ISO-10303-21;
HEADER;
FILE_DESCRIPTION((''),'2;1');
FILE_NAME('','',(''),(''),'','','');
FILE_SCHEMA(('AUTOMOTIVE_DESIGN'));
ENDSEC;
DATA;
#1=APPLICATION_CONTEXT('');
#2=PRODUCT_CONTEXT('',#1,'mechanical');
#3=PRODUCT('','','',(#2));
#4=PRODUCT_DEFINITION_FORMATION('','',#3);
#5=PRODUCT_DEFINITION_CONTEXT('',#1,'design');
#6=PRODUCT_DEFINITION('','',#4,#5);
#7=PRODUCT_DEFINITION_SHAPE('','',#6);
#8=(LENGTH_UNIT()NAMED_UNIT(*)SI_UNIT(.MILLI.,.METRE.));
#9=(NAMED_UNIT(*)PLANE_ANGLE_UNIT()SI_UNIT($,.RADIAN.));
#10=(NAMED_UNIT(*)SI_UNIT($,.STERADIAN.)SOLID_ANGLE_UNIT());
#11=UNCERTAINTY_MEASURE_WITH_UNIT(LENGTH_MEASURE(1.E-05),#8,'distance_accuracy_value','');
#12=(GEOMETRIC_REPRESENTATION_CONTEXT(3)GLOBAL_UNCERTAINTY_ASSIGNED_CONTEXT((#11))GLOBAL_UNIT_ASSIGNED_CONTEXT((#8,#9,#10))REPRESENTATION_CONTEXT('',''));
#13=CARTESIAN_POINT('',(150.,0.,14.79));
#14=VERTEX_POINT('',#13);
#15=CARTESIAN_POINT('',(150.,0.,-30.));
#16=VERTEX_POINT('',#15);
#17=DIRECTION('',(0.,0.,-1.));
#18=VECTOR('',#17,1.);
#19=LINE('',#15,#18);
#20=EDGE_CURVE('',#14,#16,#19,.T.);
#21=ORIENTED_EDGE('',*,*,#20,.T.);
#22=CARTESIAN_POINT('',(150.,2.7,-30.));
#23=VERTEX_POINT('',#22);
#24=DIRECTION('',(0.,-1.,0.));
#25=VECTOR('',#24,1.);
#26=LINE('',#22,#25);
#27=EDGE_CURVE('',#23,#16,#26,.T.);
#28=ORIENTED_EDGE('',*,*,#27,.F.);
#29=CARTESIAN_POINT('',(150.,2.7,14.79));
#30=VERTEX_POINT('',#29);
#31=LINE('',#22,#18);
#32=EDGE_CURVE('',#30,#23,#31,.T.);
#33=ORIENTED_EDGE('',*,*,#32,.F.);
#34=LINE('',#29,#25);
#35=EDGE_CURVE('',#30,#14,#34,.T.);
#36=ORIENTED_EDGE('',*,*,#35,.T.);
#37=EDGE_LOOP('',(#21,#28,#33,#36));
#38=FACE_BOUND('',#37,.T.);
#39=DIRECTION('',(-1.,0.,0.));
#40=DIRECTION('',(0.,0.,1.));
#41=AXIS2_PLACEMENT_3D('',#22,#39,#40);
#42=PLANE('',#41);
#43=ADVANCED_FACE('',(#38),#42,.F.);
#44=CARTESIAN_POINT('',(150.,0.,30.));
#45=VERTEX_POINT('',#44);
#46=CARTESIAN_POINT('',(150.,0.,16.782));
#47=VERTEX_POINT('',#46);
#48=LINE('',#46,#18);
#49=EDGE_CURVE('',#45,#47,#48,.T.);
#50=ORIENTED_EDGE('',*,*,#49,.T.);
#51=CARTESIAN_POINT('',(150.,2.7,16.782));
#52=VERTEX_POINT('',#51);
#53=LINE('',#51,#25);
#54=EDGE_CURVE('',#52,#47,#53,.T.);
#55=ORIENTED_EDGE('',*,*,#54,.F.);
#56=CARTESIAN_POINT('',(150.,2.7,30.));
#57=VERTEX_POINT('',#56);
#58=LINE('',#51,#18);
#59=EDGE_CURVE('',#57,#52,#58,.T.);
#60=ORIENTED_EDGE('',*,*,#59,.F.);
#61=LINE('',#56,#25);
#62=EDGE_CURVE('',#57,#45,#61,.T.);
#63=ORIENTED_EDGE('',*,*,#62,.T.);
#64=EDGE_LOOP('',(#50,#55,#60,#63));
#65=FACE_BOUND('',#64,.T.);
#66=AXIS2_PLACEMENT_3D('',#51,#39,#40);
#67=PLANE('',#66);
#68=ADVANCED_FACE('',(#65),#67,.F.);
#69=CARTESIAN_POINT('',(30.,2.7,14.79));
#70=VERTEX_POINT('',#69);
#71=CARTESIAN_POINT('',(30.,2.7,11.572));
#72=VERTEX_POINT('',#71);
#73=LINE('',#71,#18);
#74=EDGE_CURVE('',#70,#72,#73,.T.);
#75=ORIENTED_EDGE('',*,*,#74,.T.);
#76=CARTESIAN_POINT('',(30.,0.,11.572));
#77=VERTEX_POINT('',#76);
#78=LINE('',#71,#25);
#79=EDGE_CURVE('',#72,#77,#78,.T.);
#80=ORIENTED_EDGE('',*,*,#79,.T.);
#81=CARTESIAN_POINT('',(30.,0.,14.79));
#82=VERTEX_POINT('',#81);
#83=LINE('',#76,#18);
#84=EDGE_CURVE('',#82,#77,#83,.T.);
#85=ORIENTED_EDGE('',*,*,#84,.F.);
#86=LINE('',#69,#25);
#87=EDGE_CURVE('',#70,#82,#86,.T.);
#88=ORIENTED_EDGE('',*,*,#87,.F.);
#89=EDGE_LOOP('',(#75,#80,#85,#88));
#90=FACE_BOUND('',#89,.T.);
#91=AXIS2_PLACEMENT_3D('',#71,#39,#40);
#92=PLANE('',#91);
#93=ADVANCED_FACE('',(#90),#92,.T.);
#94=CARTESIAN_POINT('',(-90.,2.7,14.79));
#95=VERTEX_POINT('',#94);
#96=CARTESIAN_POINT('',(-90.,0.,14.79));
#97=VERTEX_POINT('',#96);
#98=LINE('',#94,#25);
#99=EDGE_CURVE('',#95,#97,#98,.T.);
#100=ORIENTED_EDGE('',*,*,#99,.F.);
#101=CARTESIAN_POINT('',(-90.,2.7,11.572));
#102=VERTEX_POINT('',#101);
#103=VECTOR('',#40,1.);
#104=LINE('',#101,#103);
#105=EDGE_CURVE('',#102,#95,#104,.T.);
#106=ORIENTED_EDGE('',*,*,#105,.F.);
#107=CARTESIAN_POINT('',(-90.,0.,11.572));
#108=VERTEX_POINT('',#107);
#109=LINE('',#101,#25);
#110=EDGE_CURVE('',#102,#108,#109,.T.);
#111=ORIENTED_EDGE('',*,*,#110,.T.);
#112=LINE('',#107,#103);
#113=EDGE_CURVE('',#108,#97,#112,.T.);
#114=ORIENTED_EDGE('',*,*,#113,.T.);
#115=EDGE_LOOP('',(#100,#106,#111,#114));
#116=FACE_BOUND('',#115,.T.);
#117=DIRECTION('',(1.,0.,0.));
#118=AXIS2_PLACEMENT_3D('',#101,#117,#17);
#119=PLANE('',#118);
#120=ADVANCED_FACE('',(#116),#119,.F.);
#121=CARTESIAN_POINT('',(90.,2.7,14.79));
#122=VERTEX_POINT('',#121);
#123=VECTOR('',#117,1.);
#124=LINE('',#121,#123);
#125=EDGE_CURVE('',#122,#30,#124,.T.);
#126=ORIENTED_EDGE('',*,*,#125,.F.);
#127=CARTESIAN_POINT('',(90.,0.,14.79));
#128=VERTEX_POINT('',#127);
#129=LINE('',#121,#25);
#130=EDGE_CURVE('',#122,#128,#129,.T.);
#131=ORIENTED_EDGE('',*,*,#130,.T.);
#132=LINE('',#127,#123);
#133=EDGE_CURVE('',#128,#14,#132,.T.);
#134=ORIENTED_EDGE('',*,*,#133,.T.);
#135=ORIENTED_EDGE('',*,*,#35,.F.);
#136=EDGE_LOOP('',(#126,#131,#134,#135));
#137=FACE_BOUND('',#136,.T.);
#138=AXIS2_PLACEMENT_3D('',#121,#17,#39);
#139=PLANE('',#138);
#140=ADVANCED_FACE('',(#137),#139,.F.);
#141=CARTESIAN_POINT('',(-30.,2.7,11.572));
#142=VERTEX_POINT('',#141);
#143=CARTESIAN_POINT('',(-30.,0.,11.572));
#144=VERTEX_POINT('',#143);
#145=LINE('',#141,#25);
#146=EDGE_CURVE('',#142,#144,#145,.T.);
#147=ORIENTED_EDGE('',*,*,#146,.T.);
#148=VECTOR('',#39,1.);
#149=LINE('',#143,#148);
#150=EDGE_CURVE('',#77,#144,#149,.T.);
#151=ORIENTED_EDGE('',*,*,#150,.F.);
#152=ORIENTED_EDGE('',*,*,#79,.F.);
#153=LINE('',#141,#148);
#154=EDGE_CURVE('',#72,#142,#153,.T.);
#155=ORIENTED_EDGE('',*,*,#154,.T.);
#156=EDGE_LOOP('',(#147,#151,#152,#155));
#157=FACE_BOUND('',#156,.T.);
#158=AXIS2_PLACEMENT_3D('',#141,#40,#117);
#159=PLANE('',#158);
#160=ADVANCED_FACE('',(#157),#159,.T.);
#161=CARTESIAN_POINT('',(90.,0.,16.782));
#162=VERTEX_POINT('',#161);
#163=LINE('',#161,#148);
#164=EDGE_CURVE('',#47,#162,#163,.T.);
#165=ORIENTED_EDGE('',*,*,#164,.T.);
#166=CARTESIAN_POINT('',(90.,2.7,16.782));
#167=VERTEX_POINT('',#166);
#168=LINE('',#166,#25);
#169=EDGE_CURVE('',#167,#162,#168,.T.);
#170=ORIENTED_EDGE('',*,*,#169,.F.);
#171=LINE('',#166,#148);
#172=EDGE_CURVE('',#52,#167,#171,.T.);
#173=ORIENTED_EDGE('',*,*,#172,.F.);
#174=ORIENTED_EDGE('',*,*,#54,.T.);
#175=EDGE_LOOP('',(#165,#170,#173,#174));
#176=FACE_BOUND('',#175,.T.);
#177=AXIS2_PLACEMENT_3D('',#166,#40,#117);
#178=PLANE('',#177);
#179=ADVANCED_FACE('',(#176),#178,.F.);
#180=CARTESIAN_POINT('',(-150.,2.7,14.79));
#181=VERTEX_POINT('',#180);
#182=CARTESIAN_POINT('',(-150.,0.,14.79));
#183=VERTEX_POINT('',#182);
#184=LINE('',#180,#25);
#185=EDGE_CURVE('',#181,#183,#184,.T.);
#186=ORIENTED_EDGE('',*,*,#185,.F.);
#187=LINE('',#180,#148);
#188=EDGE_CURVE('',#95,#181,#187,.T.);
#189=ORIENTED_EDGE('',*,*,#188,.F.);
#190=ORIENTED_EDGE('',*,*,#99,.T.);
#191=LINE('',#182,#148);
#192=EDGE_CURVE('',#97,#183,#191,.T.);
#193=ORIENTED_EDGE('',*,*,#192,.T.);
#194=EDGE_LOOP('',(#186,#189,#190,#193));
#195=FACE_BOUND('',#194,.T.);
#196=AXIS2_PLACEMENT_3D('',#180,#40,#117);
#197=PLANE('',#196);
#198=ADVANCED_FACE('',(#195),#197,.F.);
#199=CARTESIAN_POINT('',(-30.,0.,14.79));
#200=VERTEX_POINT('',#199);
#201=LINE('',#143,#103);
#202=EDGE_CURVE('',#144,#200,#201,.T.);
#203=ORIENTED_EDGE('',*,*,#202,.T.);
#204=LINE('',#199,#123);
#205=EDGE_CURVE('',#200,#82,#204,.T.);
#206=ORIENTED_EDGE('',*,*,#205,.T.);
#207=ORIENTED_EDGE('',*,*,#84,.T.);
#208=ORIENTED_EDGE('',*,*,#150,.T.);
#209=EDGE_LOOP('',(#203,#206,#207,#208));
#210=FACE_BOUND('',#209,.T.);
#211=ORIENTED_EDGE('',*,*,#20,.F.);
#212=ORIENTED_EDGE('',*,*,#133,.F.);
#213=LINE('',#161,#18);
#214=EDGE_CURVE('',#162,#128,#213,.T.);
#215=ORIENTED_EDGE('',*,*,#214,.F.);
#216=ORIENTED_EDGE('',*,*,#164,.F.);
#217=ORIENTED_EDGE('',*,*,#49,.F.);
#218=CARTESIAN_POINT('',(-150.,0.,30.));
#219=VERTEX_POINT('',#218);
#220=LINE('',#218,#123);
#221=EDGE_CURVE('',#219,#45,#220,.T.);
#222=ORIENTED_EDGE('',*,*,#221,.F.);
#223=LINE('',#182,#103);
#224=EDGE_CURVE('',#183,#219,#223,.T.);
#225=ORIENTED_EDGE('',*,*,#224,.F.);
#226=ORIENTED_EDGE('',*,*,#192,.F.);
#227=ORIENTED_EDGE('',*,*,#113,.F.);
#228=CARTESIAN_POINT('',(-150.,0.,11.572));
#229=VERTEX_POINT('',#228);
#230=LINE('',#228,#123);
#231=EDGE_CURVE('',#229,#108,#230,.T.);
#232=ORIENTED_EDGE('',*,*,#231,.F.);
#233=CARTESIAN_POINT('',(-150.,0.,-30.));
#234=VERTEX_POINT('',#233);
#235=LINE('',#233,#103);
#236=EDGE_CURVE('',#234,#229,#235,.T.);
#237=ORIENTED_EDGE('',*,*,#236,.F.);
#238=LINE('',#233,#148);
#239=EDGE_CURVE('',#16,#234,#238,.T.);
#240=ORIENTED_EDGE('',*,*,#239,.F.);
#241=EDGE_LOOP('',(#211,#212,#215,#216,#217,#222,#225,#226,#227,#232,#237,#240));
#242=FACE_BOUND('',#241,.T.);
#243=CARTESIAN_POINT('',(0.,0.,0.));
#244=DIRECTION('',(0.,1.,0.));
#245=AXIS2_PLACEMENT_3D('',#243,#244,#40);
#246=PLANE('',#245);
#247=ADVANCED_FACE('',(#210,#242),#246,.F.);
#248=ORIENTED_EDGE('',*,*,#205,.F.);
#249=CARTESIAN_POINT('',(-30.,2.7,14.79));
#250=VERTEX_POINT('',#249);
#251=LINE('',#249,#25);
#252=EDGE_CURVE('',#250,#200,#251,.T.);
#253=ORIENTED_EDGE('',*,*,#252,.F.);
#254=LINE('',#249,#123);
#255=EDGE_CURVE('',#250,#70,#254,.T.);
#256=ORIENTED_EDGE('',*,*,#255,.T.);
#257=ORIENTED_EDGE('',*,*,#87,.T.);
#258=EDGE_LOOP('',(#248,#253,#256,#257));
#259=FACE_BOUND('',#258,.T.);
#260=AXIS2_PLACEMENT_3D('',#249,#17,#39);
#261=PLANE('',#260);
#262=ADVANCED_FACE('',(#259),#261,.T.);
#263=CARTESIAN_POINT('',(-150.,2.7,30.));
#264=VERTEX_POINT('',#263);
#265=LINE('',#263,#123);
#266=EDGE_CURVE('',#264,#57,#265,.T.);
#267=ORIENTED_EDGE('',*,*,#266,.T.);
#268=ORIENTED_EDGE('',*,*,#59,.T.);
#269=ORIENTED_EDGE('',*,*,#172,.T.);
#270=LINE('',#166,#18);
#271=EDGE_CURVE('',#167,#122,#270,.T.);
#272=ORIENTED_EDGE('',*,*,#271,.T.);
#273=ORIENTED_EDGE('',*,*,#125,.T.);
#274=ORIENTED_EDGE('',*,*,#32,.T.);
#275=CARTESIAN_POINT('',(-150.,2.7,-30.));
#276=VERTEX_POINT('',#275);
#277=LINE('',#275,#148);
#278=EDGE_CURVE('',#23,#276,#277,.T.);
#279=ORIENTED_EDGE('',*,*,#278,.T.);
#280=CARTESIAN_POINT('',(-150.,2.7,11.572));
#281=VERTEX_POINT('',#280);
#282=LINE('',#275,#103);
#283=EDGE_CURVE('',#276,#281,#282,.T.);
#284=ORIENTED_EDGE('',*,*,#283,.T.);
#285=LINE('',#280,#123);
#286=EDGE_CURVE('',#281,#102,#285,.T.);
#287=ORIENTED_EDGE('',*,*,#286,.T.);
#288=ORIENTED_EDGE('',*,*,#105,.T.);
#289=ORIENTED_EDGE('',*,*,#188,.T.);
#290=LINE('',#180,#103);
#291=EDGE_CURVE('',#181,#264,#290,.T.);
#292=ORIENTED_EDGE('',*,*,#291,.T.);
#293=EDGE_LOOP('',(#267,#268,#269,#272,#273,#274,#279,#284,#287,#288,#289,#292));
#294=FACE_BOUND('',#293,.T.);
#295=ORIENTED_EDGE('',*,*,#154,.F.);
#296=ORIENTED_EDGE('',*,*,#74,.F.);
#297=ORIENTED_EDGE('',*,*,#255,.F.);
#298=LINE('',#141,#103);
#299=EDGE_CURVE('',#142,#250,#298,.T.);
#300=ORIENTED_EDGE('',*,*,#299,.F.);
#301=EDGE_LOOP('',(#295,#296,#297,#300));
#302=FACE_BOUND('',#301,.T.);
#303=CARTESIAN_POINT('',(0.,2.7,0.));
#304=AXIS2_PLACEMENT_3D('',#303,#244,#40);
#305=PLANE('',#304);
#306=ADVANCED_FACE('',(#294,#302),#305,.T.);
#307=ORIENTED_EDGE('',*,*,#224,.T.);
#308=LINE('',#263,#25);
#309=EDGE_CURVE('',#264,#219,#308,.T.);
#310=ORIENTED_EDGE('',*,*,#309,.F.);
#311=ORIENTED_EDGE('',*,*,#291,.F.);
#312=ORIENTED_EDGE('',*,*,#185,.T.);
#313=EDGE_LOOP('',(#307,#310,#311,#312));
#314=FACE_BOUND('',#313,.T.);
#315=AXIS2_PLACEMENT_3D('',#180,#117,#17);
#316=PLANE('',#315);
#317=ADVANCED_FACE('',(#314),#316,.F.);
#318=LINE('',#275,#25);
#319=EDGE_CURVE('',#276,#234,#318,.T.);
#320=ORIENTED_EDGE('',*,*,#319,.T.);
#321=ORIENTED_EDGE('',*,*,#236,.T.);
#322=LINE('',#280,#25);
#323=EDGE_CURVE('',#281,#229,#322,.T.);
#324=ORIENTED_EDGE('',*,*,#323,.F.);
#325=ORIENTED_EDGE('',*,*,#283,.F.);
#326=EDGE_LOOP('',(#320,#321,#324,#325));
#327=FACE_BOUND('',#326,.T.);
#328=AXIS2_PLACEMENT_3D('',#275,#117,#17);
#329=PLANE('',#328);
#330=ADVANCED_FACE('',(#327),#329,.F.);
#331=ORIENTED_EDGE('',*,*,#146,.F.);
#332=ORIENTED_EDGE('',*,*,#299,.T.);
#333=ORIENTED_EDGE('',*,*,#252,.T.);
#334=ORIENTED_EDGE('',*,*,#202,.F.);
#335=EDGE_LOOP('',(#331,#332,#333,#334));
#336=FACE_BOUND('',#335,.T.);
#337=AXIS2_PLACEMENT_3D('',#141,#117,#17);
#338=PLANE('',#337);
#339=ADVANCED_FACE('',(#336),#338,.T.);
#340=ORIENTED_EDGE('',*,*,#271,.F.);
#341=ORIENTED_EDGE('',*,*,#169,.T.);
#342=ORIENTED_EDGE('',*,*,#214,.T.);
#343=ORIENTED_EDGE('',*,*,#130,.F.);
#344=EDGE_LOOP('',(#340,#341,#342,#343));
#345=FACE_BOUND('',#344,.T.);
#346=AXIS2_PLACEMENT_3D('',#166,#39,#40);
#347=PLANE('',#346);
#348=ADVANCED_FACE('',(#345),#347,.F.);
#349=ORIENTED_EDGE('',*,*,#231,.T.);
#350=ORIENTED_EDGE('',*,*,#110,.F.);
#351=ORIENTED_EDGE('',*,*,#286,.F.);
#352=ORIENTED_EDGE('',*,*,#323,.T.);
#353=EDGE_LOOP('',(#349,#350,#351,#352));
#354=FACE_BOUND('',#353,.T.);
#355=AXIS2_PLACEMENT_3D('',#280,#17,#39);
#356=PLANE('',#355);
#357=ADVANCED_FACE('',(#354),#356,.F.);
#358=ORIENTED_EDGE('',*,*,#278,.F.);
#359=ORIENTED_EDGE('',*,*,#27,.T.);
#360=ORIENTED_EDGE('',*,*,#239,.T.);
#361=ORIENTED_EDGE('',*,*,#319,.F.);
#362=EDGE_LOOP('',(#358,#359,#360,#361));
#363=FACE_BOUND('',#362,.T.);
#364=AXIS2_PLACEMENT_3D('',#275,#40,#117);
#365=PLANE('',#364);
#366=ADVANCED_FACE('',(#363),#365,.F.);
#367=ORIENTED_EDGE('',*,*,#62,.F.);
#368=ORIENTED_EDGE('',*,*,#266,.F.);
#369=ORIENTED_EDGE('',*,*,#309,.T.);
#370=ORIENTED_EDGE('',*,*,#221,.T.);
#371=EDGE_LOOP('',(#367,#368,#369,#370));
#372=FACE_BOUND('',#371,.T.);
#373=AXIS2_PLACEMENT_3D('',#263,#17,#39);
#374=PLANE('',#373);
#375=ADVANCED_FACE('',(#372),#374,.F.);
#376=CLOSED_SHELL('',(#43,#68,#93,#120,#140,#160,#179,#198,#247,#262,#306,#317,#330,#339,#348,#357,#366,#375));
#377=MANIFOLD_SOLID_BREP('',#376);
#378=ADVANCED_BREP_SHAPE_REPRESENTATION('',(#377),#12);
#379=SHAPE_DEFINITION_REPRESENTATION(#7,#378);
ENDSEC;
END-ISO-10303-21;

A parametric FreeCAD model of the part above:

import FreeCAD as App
import Part
import Sketcher
from FreeCAD import Vector
Q = App.Units.Quantity

doc = App.newDocument("Part")
body = doc.addObject("PartDesign::Body", "Body")

# Sketch on XZ plane
sketch1 = body.newObject("Sketcher::SketchObject", "Sketch")
sketch1.AttachmentSupport = (doc.getObject("XZ_Plane"), [""])
sketch1.MapMode = "FlatFace"
sketch1.addGeometry(Part.LineSegment(Vector(-90, 14.79, 0), Vector(-150, 14.79, 0)), False)
sketch1.addGeometry(Part.LineSegment(Vector(-150, 14.79, 0), Vector(-150, 30, 0)), False)
sketch1.addGeometry(Part.LineSegment(Vector(-150, 30, 0), Vector(150, 30, 0)), False)
sketch1.addGeometry(Part.LineSegment(Vector(150, 30, 0), Vector(150, 16.782, 0)), False)
sketch1.addGeometry(Part.LineSegment(Vector(150, 16.782, 0), Vector(90, 16.782, 0)), False)
sketch1.addGeometry(Part.LineSegment(Vector(90, 16.782, 0), Vector(90, 14.79, 0)), False)
sketch1.addGeometry(Part.LineSegment(Vector(90, 14.79, 0), Vector(150, 14.79, 0)), False)
sketch1.addGeometry(Part.LineSegment(Vector(150, 14.79, 0), Vector(150, -30, 0)), False)
sketch1.addGeometry(Part.LineSegment(Vector(150, -30, 0), Vector(-150, -30, 0)), False)
sketch1.addGeometry(Part.LineSegment(Vector(-150, -30, 0), Vector(-150, 11.572, 0)), False)
sketch1.addGeometry(Part.LineSegment(Vector(-150, 11.572, 0), Vector(-90, 11.572, 0)), False)
sketch1.addGeometry(Part.LineSegment(Vector(-90, 11.572, 0), Vector(-90, 14.79, 0)), False)
sketch1.addGeometry(Part.LineSegment(Vector(-30, 14.79, 0), Vector(-30, 11.572, 0)), False)
sketch1.addGeometry(Part.LineSegment(Vector(-30, 11.572, 0), Vector(30, 11.572, 0)), False)
sketch1.addGeometry(Part.LineSegment(Vector(30, 11.572, 0), Vector(30, 14.79, 0)), False)
sketch1.addGeometry(Part.LineSegment(Vector(30, 14.79, 0), Vector(-30, 14.79, 0)), False)
sketch1.addConstraint(Sketcher.Constraint("Coincident", 0, 2, 1, 1))
sketch1.addConstraint(Sketcher.Constraint("Coincident", 1, 2, 2, 1))
sketch1.addConstraint(Sketcher.Constraint("Coincident", 2, 2, 3, 1))
sketch1.addConstraint(Sketcher.Constraint("Coincident", 3, 2, 4, 1))
sketch1.addConstraint(Sketcher.Constraint("Coincident", 4, 2, 5, 1))
sketch1.addConstraint(Sketcher.Constraint("Coincident", 5, 2, 6, 1))
sketch1.addConstraint(Sketcher.Constraint("Coincident", 6, 2, 7, 1))
sketch1.addConstraint(Sketcher.Constraint("Coincident", 7, 2, 8, 1))
sketch1.addConstraint(Sketcher.Constraint("Coincident", 8, 2, 9, 1))
sketch1.addConstraint(Sketcher.Constraint("Coincident", 9, 2, 10, 1))
sketch1.addConstraint(Sketcher.Constraint("Coincident", 10, 2, 11, 1))
sketch1.addConstraint(Sketcher.Constraint("Coincident", 11, 2, 0, 1))
sketch1.addConstraint(Sketcher.Constraint("Coincident", 12, 2, 13, 1))
sketch1.addConstraint(Sketcher.Constraint("Coincident", 13, 2, 14, 1))
sketch1.addConstraint(Sketcher.Constraint("Coincident", 14, 2, 15, 1))
sketch1.addConstraint(Sketcher.Constraint("Coincident", 15, 2, 12, 1))
sketch1.addConstraint(Sketcher.Constraint("Horizontal", 0))
sketch1.addConstraint(Sketcher.Constraint("Vertical", 1))
sketch1.addConstraint(Sketcher.Constraint("Horizontal", 2))
sketch1.addConstraint(Sketcher.Constraint("Vertical", 3))
sketch1.addConstraint(Sketcher.Constraint("Horizontal", 4))
sketch1.addConstraint(Sketcher.Constraint("Vertical", 5))
sketch1.addConstraint(Sketcher.Constraint("Horizontal", 6))
sketch1.addConstraint(Sketcher.Constraint("Vertical", 7))
sketch1.addConstraint(Sketcher.Constraint("Horizontal", 8))
sketch1.addConstraint(Sketcher.Constraint("Vertical", 9))
sketch1.addConstraint(Sketcher.Constraint("Horizontal", 10))
sketch1.addConstraint(Sketcher.Constraint("Vertical", 11))
sketch1.addConstraint(Sketcher.Constraint("Vertical", 12))
sketch1.addConstraint(Sketcher.Constraint("Horizontal", 13))
sketch1.addConstraint(Sketcher.Constraint("Vertical", 14))
sketch1.addConstraint(Sketcher.Constraint("Horizontal", 15))
sketch1.addConstraint(Sketcher.Constraint("Symmetric", 1, 2, 7, 2, -1, 1))
sketch1.addConstraint(Sketcher.Constraint("Symmetric", 5, 2, 11, 2, -2))
sketch1.addConstraint(Sketcher.Constraint("Horizontal", 10, 2, 12, 2))
sketch1.addConstraint(Sketcher.Constraint("Horizontal", 11, 2, 14, 2))
sketch1.addConstraint(Sketcher.Constraint("Vertical", 3, 2, 6, 2))
sketch1.addConstraint(Sketcher.Constraint("Vertical", 1, 2, 8, 2))
sketch1.addConstraint(Sketcher.Constraint("Equal", 10, 13))
sketch1.addConstraint(Sketcher.Constraint("DistanceX", 0, 2, 0, 1, Q("60 mm")))
sketch1.addConstraint(Sketcher.Constraint("DistanceX", 2, 1, 2, 2, Q("300 mm")))
sketch1.addConstraint(Sketcher.Constraint("DistanceY", -1, 1, 1, 2, Q("30 mm")))
sketch1.addConstraint(Sketcher.Constraint("DistanceX", 12, 2, -1, 1, Q("30 mm")))
sketch1.addConstraint(Sketcher.Constraint("DistanceY", 1, 1, 1, 2, Q("15.21 mm")))
sketch1.addConstraint(Sketcher.Constraint("DistanceY", 3, 2, 3, 1, Q("13.218 mm")))
sketch1.addConstraint(Sketcher.Constraint("DistanceY", 9, 1, 9, 2, Q("41.572 mm")))
pad1 = body.newObject("PartDesign::Pad", "Pad")
pad1.Profile = sketch1
pad1.Length = 2.7
pad1.Reversed = True

doc.recompute()
